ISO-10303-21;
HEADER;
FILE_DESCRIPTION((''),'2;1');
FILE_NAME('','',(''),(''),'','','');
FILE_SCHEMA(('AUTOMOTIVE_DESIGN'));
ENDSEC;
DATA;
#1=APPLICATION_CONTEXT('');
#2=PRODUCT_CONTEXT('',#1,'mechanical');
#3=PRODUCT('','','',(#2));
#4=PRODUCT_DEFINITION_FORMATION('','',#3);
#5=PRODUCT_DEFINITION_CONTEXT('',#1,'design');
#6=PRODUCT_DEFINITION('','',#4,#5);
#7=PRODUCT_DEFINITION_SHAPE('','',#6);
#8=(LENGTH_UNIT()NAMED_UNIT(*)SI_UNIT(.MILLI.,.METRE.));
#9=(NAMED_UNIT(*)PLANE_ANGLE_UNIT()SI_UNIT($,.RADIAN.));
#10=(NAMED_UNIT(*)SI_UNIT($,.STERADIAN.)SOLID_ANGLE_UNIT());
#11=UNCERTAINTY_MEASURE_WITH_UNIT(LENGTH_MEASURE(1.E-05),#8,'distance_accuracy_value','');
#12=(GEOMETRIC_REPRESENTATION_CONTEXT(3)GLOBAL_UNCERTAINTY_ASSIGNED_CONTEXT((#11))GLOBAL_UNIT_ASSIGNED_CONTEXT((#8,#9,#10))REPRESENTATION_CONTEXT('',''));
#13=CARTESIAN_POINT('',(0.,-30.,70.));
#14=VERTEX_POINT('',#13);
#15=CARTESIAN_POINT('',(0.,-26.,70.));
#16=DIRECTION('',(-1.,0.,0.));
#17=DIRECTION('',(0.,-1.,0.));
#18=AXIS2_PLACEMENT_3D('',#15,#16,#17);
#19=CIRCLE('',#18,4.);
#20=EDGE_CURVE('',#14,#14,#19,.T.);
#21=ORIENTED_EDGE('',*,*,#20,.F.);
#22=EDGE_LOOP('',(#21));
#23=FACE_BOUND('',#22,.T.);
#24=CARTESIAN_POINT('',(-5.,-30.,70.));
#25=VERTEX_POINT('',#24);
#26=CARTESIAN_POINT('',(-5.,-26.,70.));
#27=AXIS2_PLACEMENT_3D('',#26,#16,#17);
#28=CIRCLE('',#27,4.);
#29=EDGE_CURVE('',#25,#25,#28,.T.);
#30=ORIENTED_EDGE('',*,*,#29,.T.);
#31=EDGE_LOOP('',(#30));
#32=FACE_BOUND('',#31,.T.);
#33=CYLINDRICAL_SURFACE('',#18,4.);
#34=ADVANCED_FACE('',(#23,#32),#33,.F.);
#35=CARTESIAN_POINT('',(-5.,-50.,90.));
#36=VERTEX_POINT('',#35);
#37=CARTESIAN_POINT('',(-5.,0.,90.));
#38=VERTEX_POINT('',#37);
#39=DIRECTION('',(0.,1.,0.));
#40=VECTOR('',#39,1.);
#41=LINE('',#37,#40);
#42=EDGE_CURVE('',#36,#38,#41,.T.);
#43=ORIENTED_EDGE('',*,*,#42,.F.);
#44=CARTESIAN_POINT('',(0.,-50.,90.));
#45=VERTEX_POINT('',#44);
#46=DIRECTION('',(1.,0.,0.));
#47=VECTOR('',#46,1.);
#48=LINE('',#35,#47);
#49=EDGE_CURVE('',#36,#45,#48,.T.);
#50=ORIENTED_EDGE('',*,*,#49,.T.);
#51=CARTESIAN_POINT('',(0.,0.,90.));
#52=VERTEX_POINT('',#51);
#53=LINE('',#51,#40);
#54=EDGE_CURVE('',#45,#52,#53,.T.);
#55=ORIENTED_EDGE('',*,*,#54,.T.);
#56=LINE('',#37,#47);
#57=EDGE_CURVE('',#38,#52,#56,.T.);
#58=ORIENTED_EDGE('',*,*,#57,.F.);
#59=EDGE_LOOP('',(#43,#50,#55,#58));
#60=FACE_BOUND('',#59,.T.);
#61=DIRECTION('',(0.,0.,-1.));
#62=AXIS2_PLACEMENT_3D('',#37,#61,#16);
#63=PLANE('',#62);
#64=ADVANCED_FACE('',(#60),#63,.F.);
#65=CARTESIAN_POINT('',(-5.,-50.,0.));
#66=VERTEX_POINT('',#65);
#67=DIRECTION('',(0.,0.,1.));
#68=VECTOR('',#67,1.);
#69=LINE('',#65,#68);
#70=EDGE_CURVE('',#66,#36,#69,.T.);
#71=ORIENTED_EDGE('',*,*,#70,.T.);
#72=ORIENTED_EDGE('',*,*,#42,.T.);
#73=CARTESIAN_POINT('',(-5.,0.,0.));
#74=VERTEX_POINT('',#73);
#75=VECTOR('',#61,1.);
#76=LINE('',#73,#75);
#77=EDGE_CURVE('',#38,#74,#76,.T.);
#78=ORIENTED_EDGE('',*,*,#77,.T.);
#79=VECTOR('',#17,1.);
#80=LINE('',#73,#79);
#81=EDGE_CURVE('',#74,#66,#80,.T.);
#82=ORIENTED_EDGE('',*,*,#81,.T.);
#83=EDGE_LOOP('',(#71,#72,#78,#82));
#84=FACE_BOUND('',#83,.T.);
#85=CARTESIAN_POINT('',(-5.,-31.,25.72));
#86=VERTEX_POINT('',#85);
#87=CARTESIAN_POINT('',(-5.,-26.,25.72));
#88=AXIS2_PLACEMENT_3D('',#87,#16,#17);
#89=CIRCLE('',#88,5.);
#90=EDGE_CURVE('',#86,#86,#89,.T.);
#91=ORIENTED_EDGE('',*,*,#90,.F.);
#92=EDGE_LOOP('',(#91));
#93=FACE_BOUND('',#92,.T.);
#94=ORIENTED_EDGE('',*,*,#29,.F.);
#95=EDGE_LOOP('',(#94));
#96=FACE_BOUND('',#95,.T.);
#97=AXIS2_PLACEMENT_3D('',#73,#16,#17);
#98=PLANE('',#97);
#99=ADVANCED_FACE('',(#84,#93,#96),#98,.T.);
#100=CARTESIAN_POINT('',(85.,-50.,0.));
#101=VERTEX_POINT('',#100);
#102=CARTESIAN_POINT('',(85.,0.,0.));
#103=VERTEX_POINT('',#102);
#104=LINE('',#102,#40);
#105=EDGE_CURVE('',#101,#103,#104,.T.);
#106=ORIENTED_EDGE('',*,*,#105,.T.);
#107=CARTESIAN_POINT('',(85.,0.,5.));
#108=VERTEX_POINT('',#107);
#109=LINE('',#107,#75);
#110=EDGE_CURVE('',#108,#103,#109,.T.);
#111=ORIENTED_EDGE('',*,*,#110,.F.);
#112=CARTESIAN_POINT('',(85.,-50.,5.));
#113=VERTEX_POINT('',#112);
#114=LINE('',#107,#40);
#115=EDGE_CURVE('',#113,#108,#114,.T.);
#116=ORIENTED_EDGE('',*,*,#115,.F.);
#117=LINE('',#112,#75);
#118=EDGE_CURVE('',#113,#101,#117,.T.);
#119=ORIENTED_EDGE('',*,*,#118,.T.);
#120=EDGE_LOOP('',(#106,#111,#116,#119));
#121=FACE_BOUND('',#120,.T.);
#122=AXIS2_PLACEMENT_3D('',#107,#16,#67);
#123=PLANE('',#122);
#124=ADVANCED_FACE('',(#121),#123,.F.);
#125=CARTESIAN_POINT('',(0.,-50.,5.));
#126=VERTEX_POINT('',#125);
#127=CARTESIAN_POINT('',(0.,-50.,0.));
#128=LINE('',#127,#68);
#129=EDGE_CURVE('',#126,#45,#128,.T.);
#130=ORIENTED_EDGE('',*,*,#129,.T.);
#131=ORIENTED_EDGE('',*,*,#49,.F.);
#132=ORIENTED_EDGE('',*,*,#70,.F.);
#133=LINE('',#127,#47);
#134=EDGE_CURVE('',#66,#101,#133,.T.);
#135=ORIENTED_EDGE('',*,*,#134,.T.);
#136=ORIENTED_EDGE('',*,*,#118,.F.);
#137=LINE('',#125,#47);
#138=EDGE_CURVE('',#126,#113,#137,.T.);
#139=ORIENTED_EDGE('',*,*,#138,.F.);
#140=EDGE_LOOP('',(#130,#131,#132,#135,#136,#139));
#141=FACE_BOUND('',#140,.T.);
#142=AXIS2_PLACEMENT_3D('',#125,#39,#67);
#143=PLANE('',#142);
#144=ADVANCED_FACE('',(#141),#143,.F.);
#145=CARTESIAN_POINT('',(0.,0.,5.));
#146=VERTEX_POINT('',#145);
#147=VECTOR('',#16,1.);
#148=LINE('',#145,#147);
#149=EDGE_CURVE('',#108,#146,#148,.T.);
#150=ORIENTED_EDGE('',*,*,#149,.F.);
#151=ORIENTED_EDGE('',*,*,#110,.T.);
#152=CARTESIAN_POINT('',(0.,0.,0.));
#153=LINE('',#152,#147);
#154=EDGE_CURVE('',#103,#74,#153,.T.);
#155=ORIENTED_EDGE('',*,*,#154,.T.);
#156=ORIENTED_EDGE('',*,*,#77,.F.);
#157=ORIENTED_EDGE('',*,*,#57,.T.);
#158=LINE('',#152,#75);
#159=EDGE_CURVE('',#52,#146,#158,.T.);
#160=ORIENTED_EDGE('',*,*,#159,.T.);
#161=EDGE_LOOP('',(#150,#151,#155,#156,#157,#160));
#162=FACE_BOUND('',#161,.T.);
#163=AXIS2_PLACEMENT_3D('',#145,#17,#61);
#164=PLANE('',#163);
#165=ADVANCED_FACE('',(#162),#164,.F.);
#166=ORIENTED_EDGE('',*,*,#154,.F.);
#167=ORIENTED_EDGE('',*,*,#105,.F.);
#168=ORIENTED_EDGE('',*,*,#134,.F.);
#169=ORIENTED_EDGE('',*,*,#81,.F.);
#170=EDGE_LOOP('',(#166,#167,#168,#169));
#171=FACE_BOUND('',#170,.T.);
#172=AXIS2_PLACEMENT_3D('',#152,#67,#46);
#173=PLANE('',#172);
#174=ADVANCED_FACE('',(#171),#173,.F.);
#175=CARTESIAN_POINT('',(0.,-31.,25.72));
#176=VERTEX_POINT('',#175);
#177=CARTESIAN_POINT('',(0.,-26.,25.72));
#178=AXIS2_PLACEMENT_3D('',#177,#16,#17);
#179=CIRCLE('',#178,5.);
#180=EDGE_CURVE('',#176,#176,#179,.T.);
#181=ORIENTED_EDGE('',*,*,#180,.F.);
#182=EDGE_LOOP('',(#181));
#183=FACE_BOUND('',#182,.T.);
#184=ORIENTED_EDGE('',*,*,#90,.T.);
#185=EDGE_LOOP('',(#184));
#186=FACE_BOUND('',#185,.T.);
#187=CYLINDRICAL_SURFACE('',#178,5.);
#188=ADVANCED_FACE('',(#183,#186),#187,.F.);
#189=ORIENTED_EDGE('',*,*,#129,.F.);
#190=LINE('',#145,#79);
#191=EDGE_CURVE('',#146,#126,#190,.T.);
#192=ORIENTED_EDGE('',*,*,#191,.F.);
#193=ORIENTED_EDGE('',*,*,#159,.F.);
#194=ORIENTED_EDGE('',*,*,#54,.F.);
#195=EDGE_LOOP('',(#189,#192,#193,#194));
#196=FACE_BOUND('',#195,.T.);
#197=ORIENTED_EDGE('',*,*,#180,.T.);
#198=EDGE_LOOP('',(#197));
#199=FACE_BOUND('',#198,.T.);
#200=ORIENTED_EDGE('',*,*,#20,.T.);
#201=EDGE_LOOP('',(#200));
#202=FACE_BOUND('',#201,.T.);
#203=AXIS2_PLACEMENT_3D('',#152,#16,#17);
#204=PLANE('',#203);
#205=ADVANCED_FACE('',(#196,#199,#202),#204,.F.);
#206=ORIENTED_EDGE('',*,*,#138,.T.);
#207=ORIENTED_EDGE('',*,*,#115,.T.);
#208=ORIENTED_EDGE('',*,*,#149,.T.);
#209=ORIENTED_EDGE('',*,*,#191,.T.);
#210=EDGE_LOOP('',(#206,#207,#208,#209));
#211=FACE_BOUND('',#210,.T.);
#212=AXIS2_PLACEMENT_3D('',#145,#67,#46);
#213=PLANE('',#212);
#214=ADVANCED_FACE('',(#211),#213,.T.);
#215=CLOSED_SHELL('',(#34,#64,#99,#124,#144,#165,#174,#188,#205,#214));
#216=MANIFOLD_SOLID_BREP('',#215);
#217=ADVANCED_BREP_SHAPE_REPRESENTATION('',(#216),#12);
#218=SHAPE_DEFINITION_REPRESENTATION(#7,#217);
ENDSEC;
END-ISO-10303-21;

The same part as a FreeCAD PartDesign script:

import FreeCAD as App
import Part
import Sketcher

doc = App.newDocument("Part")
params = doc.addObject("Spreadsheet::Sheet", "Params")
for row, (alias, value) in enumerate([
    ("sketch1_width", "85 mm"),
    ("sketch1_height", "50 mm"),
    ("pad1_length", "5 mm"),
    ("sketch2_width", "50 mm"),
    ("sketch2_height", "90 mm"),
    ("pad2_length", "5 mm"),
    ("sketch3_diameter", "8 mm"),
    ("sketch3_diameter2", "10 mm"),
    ("pocket1_length", "5 mm"),
], start=1):
    params.set(f"A{row}", alias)
    params.set(f"B{row}", "=" + value)
    params.setAlias(f"B{row}", alias)

body = doc.addObject("PartDesign::Body", "Body")

# Sketch on XY plane
sketch1 = body.newObject("Sketcher::SketchObject", "Sketch")
sketch1.AttachmentSupport = (doc.getObject("XY_Plane"), [""])
sketch1.MapMode = "FlatFace"
sketch1.addGeometry([
    Part.LineSegment(App.Vector(0, 0, 0), App.Vector(0, -50, 0)),
    Part.LineSegment(App.Vector(0, -50, 0), App.Vector(85, -50, 0)),
    Part.LineSegment(App.Vector(85, -50, 0), App.Vector(85, 0, 0)),
    Part.LineSegment(App.Vector(85, 0, 0), App.Vector(0, 0, 0)),
], False)
sketch1.addConstraint([
    Sketcher.Constraint("Coincident", 0, 2, 1, 1),
    Sketcher.Constraint("Coincident", 1, 2, 2, 1),
    Sketcher.Constraint("Coincident", 2, 2, 3, 1),
    Sketcher.Constraint("Coincident", 3, 2, 0, 1),
    Sketcher.Constraint("Vertical", 0),
    Sketcher.Constraint("Horizontal", 1),
    Sketcher.Constraint("Vertical", 2),
    Sketcher.Constraint("Horizontal", 3),
    Sketcher.Constraint("Coincident", 3, 2, -1, 1),
    Sketcher.Constraint("DistanceX", 1, 1, 1, 2, 85.0),
    Sketcher.Constraint("DistanceY", 0, 2, 0, 1, 50.0),
])
sketch1.setExpression("Constraints[9]", "Params.sketch1_width")
sketch1.setExpression("Constraints[10]", "Params.sketch1_height")
pad1 = body.newObject("PartDesign::Pad", "Pad")
pad1.Profile = sketch1
pad1.setExpression("Length", "Params.pad1_length")

# Sketch on YZ plane
sketch2 = body.newObject("Sketcher::SketchObject", "Sketch001")
sketch2.AttachmentSupport = (doc.getObject("YZ_Plane"), [""])
sketch2.MapMode = "FlatFace"
sketch2.addGeometry([
    Part.LineSegment(App.Vector(0, 0, 0), App.Vector(-50, 0, 0)),
    Part.LineSegment(App.Vector(-50, 0, 0), App.Vector(-50, 90, 0)),
    Part.LineSegment(App.Vector(-50, 90, 0), App.Vector(0, 90, 0)),
    Part.LineSegment(App.Vector(0, 90, 0), App.Vector(0, 0, 0)),
], False)
sketch2.addConstraint([
    Sketcher.Constraint("Coincident", 0, 2, 1, 1),
    Sketcher.Constraint("Coincident", 1, 2, 2, 1),
    Sketcher.Constraint("Coincident", 2, 2, 3, 1),
    Sketcher.Constraint("Coincident", 3, 2, 0, 1),
    Sketcher.Constraint("Horizontal", 0),
    Sketcher.Constraint("Vertical", 1),
    Sketcher.Constraint("Horizontal", 2),
    Sketcher.Constraint("Vertical", 3),
    Sketcher.Constraint("Coincident", 3, 2, -1, 1),
    Sketcher.Constraint("DistanceX", 0, 2, 0, 1, 50.0),
    Sketcher.Constraint("DistanceY", 1, 1, 1, 2, 90.0),
])
sketch2.setExpression("Constraints[9]", "Params.sketch2_width")
sketch2.setExpression("Constraints[10]", "Params.sketch2_height")
pad2 = body.newObject("PartDesign::Pad", "Pad001")
pad2.Profile = sketch2
pad2.setExpression("Length", "Params.pad2_length")
pad2.Reversed = True

# Sketch on YZ plane
sketch3 = body.newObject("Sketcher::SketchObject", "Sketch002")
sketch3.AttachmentSupport = (doc.getObject("YZ_Plane"), [""])
sketch3.MapMode = "FlatFace"
sketch3.AttachmentOffset = App.Placement(App.Vector(0, 0, -5), App.Rotation())
sketch3.addGeometry([
    Part.Circle(App.Vector(-26, 70, 0), App.Vector(0, 0, 1), 4),
    Part.Circle(App.Vector(-26, 25.72, 0), App.Vector(0, 0, 1), 5),
], False)
sketch3.addConstraint([
    Sketcher.Constraint("Vertical", 0, 3, 1, 3),
    Sketcher.Constraint("Diameter", 0, 8.0),
    Sketcher.Constraint("Diameter", 1, 10.0),
    Sketcher.Constraint("DistanceX", 0, 3, -1, 1, 26.0),
    Sketcher.Constraint("DistanceY", -1, 1, 0, 3, 70.0),
    Sketcher.Constraint("DistanceY", -1, 1, 1, 3, 25.72),
])
sketch3.setExpression("Constraints[1]", "Params.sketch3_diameter")
sketch3.setExpression("Constraints[2]", "Params.sketch3_diameter2")
pocket1 = body.newObject("PartDesign::Pocket", "Pocket")
pocket1.Profile = sketch3
pocket1.setExpression("Length", "Params.pocket1_length")
pocket1.Reversed = True

doc.recompute()
